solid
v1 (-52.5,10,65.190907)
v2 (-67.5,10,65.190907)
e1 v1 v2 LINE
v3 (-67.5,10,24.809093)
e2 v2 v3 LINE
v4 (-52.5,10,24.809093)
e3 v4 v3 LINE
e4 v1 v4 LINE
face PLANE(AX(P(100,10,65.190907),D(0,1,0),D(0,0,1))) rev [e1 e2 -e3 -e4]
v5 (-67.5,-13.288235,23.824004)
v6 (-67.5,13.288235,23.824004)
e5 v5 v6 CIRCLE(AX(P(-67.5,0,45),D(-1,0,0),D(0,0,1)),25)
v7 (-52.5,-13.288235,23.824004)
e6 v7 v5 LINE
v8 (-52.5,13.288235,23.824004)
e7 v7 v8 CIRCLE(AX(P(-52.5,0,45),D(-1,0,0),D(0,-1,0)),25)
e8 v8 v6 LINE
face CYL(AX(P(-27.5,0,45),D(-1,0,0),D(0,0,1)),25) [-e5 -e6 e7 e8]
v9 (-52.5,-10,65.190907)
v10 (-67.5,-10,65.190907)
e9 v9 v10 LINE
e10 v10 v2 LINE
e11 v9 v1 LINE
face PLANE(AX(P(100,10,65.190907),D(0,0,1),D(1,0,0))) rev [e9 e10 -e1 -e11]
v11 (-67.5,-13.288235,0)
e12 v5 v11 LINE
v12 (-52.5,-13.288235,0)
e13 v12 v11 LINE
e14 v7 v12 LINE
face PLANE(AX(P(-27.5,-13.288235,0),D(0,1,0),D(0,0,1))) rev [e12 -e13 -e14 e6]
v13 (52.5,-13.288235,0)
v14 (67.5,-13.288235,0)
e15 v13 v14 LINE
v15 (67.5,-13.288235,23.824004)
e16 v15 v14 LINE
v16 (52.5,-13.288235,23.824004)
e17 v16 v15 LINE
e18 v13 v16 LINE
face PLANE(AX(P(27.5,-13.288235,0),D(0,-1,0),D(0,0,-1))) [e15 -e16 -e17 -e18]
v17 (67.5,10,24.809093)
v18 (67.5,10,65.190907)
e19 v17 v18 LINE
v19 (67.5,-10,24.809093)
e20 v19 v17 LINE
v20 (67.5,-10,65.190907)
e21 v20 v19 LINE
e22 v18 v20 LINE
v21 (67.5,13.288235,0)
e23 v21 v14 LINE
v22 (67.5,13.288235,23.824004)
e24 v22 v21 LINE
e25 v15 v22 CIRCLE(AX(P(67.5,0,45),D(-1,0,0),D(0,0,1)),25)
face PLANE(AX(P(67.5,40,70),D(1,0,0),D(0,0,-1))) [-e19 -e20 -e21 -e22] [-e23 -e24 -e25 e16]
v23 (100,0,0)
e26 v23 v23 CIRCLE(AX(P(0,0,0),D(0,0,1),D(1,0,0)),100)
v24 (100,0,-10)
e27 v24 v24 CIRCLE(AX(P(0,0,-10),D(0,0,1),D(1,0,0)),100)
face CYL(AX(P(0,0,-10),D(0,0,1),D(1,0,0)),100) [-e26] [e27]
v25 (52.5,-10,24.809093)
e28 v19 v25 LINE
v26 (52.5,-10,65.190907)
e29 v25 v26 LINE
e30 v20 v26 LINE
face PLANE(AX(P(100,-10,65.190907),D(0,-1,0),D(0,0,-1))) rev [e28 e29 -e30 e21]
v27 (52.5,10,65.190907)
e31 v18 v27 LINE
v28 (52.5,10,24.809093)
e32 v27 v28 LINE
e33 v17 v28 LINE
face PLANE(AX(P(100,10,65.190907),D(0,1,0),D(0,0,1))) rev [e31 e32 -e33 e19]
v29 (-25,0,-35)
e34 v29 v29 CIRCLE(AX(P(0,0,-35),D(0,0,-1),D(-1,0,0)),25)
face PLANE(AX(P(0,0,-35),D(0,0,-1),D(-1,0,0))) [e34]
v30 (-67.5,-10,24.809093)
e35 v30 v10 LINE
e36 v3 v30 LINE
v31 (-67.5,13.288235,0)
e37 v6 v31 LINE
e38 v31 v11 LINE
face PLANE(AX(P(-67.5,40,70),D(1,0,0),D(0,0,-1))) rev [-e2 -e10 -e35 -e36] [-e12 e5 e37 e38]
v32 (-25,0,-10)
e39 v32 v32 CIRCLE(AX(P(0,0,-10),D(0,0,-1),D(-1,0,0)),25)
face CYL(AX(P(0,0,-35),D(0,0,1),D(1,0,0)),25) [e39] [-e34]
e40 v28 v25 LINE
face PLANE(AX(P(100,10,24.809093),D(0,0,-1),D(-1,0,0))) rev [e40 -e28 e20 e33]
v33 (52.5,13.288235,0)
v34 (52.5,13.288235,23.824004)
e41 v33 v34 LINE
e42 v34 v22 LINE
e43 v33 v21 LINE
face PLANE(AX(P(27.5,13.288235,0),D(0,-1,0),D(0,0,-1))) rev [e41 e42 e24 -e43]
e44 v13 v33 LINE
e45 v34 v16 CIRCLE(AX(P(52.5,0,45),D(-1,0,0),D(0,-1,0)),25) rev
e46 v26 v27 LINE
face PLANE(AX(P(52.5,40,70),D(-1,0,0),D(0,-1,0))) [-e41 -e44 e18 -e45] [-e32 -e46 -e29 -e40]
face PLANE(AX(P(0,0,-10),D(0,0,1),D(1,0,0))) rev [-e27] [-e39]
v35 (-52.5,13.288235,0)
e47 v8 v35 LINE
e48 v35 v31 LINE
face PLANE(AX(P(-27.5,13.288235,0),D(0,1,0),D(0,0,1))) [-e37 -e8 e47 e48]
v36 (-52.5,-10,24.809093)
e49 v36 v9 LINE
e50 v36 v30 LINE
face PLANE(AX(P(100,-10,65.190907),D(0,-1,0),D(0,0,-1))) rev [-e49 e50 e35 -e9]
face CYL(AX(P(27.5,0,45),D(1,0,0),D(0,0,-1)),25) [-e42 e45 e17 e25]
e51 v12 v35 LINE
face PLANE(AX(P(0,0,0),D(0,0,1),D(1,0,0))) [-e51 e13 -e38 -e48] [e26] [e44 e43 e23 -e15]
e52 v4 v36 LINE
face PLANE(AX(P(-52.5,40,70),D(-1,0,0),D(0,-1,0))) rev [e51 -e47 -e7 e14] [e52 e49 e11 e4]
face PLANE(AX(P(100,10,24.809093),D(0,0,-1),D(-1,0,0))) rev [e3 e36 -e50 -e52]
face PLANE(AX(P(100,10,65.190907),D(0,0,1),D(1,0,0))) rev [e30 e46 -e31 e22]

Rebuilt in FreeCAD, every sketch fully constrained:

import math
import FreeCAD as App
import Part
import Sketcher

doc = App.newDocument("Part")
body = doc.addObject("PartDesign::Body", "Body")

# Sketch on XY plane
sketch1 = body.newObject("Sketcher::SketchObject", "Sketch")
sketch1.AttachmentSupport = (doc.getObject("XY_Plane"), [""])
sketch1.MapMode = "FlatFace"
sketch1.addGeometry(Part.Circle(App.Vector(0, 0, 0), App.Vector(0, 0, 1), 100), False)
sketch1.addConstraint([
    Sketcher.Constraint("Coincident", 0, 3, -1, 1),
    Sketcher.Constraint("Diameter", 0, 200.0),
])
pad1 = body.newObject("PartDesign::Pad", "Pad")
pad1.Profile = sketch1
pad1.Length = 10
pad1.Reversed = True

# Sketch on XY plane
sketch2 = body.newObject("Sketcher::SketchObject", "Sketch001")
sketch2.AttachmentSupport = (doc.getObject("XY_Plane"), [""])
sketch2.MapMode = "FlatFace"
sketch2.AttachmentOffset = App.Placement(App.Vector(0, 0, -10), App.Rotation())
sketch2.addGeometry(Part.Circle(App.Vector(0, 0, 0), App.Vector(0, 0, 1), 25), False)
sketch2.addConstraint([
    Sketcher.Constraint("Coincident", 0, 3, -1, 1),
    Sketcher.Constraint("Diameter", 0, 50.0),
])
pad2 = body.newObject("PartDesign::Pad", "Pad001")
pad2.Profile = sketch2
pad2.Length = 25
pad2.Reversed = True

# Sketch on XY plane
sketch3 = body.newObject("Sketcher::SketchObject", "Sketch002")
sketch3.AttachmentSupport = (doc.getObject("XY_Plane"), [""])
sketch3.MapMode = "FlatFace"
sketch3.addGeometry([
    Part.LineSegment(App.Vector(-67.5, 40, 0), App.Vector(-67.5, -40, 0)),
    Part.LineSegment(App.Vector(-67.5, -40, 0), App.Vector(-52.5, -40, 0)),
    Part.LineSegment(App.Vector(-52.5, -40, 0), App.Vector(-52.5, 40, 0)),
    Part.LineSegment(App.Vector(-52.5, 40, 0), App.Vector(-67.5, 40, 0)),
], False)
sketch3.addConstraint([
    Sketcher.Constraint("Coincident", 0, 2, 1, 1),
    Sketcher.Constraint("Coincident", 1, 2, 2, 1),
    Sketcher.Constraint("Coincident", 2, 2, 3, 1),
    Sketcher.Constraint("Coincident", 3, 2, 0, 1),
    Sketcher.Constraint("Vertical", 0),
    Sketcher.Constraint("Horizontal", 1),
    Sketcher.Constraint("Vertical", 2),
    Sketcher.Constraint("Horizontal", 3),
    Sketcher.Constraint("DistanceX", 1, 1, 1, 2, 15.0),
    Sketcher.Constraint("DistanceY", 0, 2, 0, 1, 80.0),
    Sketcher.Constraint("DistanceY", 0, 2, -1, 1, 40.0),
    Sketcher.Constraint("DistanceX", 0, 2, -1, 1, 67.5),
])
pad3 = body.newObject("PartDesign::Pad", "Pad002")
pad3.Profile = sketch3
pad3.Length = 70

# Sketch on YZ plane
sketch4 = body.newObject("Sketcher::SketchObject", "Sketch003")
sketch4.AttachmentSupport = (doc.getObject("YZ_Plane"), [""])
sketch4.MapMode = "FlatFace"
sketch4.AttachmentOffset = App.Placement(App.Vector(0, 0, -67.5), App.Rotation())
sketch4.addGeometry([
    Part.LineSegment(App.Vector(0, 70, 0), App.Vector(40, 70, 0)),  # 0
    Part.LineSegment(App.Vector(40, 70, 0), App.Vector(40, 0, 0)),  # 1
    Part.LineSegment(App.Vector(40, 0, 0), App.Vector(13.288235, 0, 0)),  # 2
    Part.LineSegment(App.Vector(13.288235, 0, 0), App.Vector(13.288235, 23.824004, 0)),  # 3
    Part.ArcOfCircle(Part.Circle(App.Vector(0, 45, 0), App.Vector(0, 0, 1), 25), math.radians(-57.891152), math.radians(90)),  # 4
    Part.LineSegment(App.Vector(-40, 70, 0), App.Vector(0, 70, 0)),  # 5
    Part.ArcOfCircle(Part.Circle(App.Vector(0, 45, 0), App.Vector(0, 0, 1), 25), math.radians(90), math.radians(237.891152)),  # 6
    Part.LineSegment(App.Vector(-13.288235, 23.824004, 0), App.Vector(-13.288235, 0, 0)),  # 7
    Part.LineSegment(App.Vector(-13.288235, 0, 0), App.Vector(-40, 0, 0)),  # 8
    Part.LineSegment(App.Vector(-40, 0, 0), App.Vector(-40, 70, 0)),  # 9
], False)
sketch4.addConstraint([
    Sketcher.Constraint("Coincident", 0, 2, 1, 1),
    Sketcher.Constraint("Coincident", 1, 2, 2, 1),
    Sketcher.Constraint("Coincident", 2, 2, 3, 1),
    Sketcher.Constraint("Coincident", 3, 2, 4, 1),
    Sketcher.Constraint("Tangent", 4, 2, 0, 1),
    Sketcher.Constraint("Tangent", 5, 2, 6, 1),
    Sketcher.Constraint("Coincident", 6, 2, 7, 1),
    Sketcher.Constraint("Coincident", 7, 2, 8, 1),
    Sketcher.Constraint("Coincident", 8, 2, 9, 1),
    Sketcher.Constraint("Coincident", 9, 2, 5, 1),
    Sketcher.Constraint("Horizontal", 0),
    Sketcher.Constraint("Vertical", 1),
    Sketcher.Constraint("Horizontal", 2),
    Sketcher.Constraint("Vertical", 3),
    Sketcher.Constraint("Horizontal", 5),
    Sketcher.Constraint("Vertical", 7),
    Sketcher.Constraint("Horizontal", 8),
    Sketcher.Constraint("Vertical", 9),
    Sketcher.Constraint("Coincident", 6, 3, 4, 3),
    Sketcher.Constraint("Equal", 4, 6),
    Sketcher.Constraint("Symmetric", 2, 2, 7, 2, -1, 1),
    Sketcher.Constraint("Symmetric", 1, 2, 8, 2, -2),
    Sketcher.Constraint("PointOnObject", 4, 3, -2),
    Sketcher.Constraint("Radius", 4, 25.0),
    Sketcher.Constraint("DistanceX", 0, 1, 0, 2, 40.0),
    Sketcher.Constraint("DistanceY", 1, 2, 1, 1, 70.0),
    Sketcher.Constraint("DistanceX", 2, 2, 2, 1, 26.711765),
])
pocket1 = body.newObject("PartDesign::Pocket", "Pocket")
pocket1.Profile = sketch4
pocket1.Length = 40
pocket1.Reversed = True
doc.recompute()

mirrored = body.newObject("PartDesign::Mirrored", "Mirrored")
mirrored.Originals = [pad3, pocket1]
mirrored.MirrorPlane = (doc.getObject("YZ_Plane"), [""])
body.Tip = mirrored

# Sketch on YZ plane
sketch5 = body.newObject("Sketcher::SketchObject", "Sketch004")
sketch5.AttachmentSupport = (doc.getObject("YZ_Plane"), [""])
sketch5.MapMode = "FlatFace"
sketch5.AttachmentOffset = App.Placement(App.Vector(0, 0, -67.5), App.Rotation())
sketch5.addGeometry([
    Part.LineSegment(App.Vector(10, 24.809093, 0), App.Vector(-10, 24.809093, 0)),
    Part.LineSegment(App.Vector(-10, 24.809093, 0), App.Vector(-10, 65.190907, 0)),
    Part.LineSegment(App.Vector(-10, 65.190907, 0), App.Vector(10, 65.190907, 0)),
    Part.LineSegment(App.Vector(10, 65.190907, 0), App.Vector(10, 24.809093, 0)),
], False)
sketch5.addConstraint([
    Sketcher.Constraint("Coincident", 0, 2, 1, 1),
    Sketcher.Constraint("Coincident", 1, 2, 2, 1),
    Sketcher.Constraint("Coincident", 2, 2, 3, 1),
    Sketcher.Constraint("Coincident", 3, 2, 0, 1),
    Sketcher.Constraint("Horizontal", 0),
    Sketcher.Constraint("Vertical", 1),
    Sketcher.Constraint("Horizontal", 2),
    Sketcher.Constraint("Vertical", 3),
    Sketcher.Constraint("DistanceX", 0, 2, 0, 1, 20.0),
    Sketcher.Constraint("DistanceX", 0, 2, -1, 1, 10.0),
    Sketcher.Constraint("DistanceY", 1, 1, 1, 2, 40.381814),
    Sketcher.Constraint("DistanceY", -1, 1, 0, 2, 24.809093),
])
pocket2 = body.newObject("PartDesign::Pocket", "Pocket001")
pocket2.Profile = sketch5
pocket2.Type = "ThroughAll"
pocket2.Reversed = True

doc.recompute()
